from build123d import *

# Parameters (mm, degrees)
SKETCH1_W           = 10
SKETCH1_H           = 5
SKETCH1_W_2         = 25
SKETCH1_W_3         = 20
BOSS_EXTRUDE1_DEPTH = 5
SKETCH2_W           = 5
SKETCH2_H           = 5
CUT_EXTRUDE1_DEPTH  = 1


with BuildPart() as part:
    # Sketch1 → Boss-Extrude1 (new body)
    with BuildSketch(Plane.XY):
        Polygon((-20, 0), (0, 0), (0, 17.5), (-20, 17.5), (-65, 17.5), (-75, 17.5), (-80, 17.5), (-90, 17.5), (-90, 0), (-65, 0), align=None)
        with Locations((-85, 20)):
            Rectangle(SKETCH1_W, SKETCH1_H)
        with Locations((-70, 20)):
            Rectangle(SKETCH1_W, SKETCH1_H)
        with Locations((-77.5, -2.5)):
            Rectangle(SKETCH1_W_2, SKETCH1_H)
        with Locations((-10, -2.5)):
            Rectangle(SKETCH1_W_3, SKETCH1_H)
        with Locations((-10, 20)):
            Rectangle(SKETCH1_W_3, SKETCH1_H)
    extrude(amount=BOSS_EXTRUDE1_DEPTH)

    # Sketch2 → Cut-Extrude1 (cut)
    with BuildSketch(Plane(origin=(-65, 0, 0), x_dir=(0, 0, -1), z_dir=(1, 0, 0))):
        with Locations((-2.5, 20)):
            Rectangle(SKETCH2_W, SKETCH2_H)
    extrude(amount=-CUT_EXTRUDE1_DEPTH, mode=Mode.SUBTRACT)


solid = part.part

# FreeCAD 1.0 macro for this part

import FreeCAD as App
import Part
import Sketcher
Q = App.Units.Quantity


def add_polygon(sketch, points):
    """Adds a closed chain of lines whose ends are joined by coincident constraints."""
    first, n = sketch.GeometryCount, len(points)
    for a, b in zip(points, points[1:] + points[:1]):
        sketch.addGeometry(Part.LineSegment(App.Vector(*a, 0), App.Vector(*b, 0)), False)
    for i in range(n):
        sketch.addConstraint(Sketcher.Constraint("Coincident", first + i, 2, first + (i + 1) % n, 1))

doc = App.newDocument("Part")
body = doc.addObject("PartDesign::Body", "Body")

# Sketch on XY plane
sketch1 = doc.addObject("Sketcher::SketchObject", "Sketch")
body.addObject(sketch1)
sketch1.AttachmentSupport = (doc.XY_Plane, [""])
sketch1.MapMode = "FlatFace"
add_polygon(sketch1, [(-20, 18), (-65, 18), (-65, 22), (-75, 22), (-75, 18), (-80, 18), (-80, 22), (-90, 22), (-90, -5), (-65, -5), (-65, 0), (-20, 0), (-20, -5), (0, -5), (0, 22), (-20, 22)])  # lines 0-15
sketch1.addConstraint([
    Sketcher.Constraint("Horizontal", 0),
    Sketcher.Constraint("Vertical", 1),
    Sketcher.Constraint("Horizontal", 2),
    Sketcher.Constraint("Vertical", 3),
    Sketcher.Constraint("Horizontal", 4),
    Sketcher.Constraint("Vertical", 5),
    Sketcher.Constraint("Horizontal", 6),
    Sketcher.Constraint("Vertical", 7),
    Sketcher.Constraint("Horizontal", 8),
    Sketcher.Constraint("Vertical", 9),
    Sketcher.Constraint("Horizontal", 10),
    Sketcher.Constraint("Vertical", 11),
    Sketcher.Constraint("Horizontal", 12),
    Sketcher.Constraint("Vertical", 13),
    Sketcher.Constraint("Horizontal", 14),
    Sketcher.Constraint("Vertical", 15),
    Sketcher.Constraint("PointOnObject", 9, 2, -1),
    Sketcher.Constraint("PointOnObject", 12, 2, -2),
    Sketcher.Constraint("Horizontal", 0, 2, 3, 2),
    Sketcher.Constraint("Horizontal", 2, 2, 5, 2),
    Sketcher.Constraint("Horizontal", 8, 2, 11, 2),
    Sketcher.Constraint("Horizontal", 6, 2, 13, 2),
    Sketcher.Constraint("Vertical", 1, 2, 8, 2),
    Sketcher.Constraint("Vertical", 11, 2, 14, 2),
    Sketcher.Constraint("Equal", 2, 6),
    Sketcher.Constraint("Equal", 4, 1),
    Sketcher.Constraint("Equal", 5, 9),
    Sketcher.Constraint("DistanceX", 0, 2, 0, 1, Q("45 mm")),
    Sketcher.Constraint("DistanceX", 2, 2, 2, 1, Q("10 mm")),
    Sketcher.Constraint("DistanceX", 4, 2, 4, 1, Q("5 mm")),
    Sketcher.Constraint("DistanceX", 12, 1, 12, 2, Q("20 mm")),
    Sketcher.Constraint("DistanceY", 7, 2, 7, 1, Q("27.5 mm")),
])
pad1 = doc.addObject("PartDesign::Pad", "Pad")
body.addObject(pad1)
pad1.Profile = sketch1
pad1.Length = 5

# Sketch on YZ plane
sketch2 = doc.addObject("Sketcher::SketchObject", "Sketch001")
body.addObject(sketch2)
sketch2.AttachmentSupport = (doc.YZ_Plane, [""])
sketch2.MapMode = "FlatFace"
sketch2.AttachmentOffset = App.Placement(App.Vector(0, 0, -65), App.Rotation())
add_polygon(sketch2, [(22, 5), (18, 5), (18, 0), (22, 0)])  # lines 0-3
sketch2.addConstraint([
    Sketcher.Constraint("Horizontal", 0),
    Sketcher.Constraint("Vertical", 1),
    Sketcher.Constraint("Horizontal", 2),
    Sketcher.Constraint("Vertical", 3),
    Sketcher.Constraint("PointOnObject", 1, 2, -1),
    Sketcher.Constraint("Equal", 2, 1),
    Sketcher.Constraint("DistanceX", 0, 2, 0, 1, Q("5 mm")),
    Sketcher.Constraint("DistanceX", -1, 1, 0, 2, Q("17.5 mm")),
])
pocket1 = doc.addObject("PartDesign::Pocket", "Pocket")
body.addObject(pocket1)
pocket1.Profile = sketch2
pocket1.Length = 1

doc.recompute()
